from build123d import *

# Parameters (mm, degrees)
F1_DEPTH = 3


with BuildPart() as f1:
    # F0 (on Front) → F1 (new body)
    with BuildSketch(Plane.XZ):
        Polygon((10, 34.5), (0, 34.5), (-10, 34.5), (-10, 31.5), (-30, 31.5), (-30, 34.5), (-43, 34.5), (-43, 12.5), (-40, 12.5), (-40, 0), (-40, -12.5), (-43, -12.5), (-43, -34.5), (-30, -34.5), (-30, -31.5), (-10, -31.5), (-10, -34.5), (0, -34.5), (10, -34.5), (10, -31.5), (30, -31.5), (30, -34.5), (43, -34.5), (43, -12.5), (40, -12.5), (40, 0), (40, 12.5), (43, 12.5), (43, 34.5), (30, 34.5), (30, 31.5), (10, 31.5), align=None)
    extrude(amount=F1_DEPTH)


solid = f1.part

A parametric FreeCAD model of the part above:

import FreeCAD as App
import Part
import Sketcher

V = App.Vector
Q = App.Units.Quantity

doc = App.newDocument("Part")
params = doc.addObject("Spreadsheet::Sheet", "Params")
for row, (alias, value) in enumerate([
    ("sketch1_width", "20 mm"),
    ("sketch1_width2", "13 mm"),
    ("sketch1_width3", "3 mm"),
    ("sketch1_height", "22 mm"),
    ("sketch1_height2", "25 mm"),
    ("pad1_length", "3 mm"),
], start=1):
    params.set(f"A{row}", alias)
    params.set(f"B{row}", "=" + value)
    params.setAlias(f"B{row}", alias)

body = doc.addObject("PartDesign::Body", "Body")

# Sketch on XZ plane
sketch1 = body.newObject("Sketcher::SketchObject", "Sketch")
sketch1.AttachmentSupport = (doc.getObject("XZ_Plane"), [""])
sketch1.MapMode = "FlatFace"
sketch1.addGeometry(Part.LineSegment(V(10, 34.5, 0), V(-10, 34.5, 0)), False)
sketch1.addGeometry(Part.LineSegment(V(-10, 34.5, 0), V(-10, 31.5, 0)), False)
sketch1.addGeometry(Part.LineSegment(V(-10, 31.5, 0), V(-30, 31.5, 0)), False)
sketch1.addGeometry(Part.LineSegment(V(-30, 31.5, 0), V(-30, 34.5, 0)), False)
sketch1.addGeometry(Part.LineSegment(V(-30, 34.5, 0), V(-43, 34.5, 0)), False)
sketch1.addGeometry(Part.LineSegment(V(-43, 34.5, 0), V(-43, 12.5, 0)), False)
sketch1.addGeometry(Part.LineSegment(V(-43, 12.5, 0), V(-40, 12.5, 0)), False)
sketch1.addGeometry(Part.LineSegment(V(-40, 12.5, 0), V(-40, -12.5, 0)), False)
sketch1.addGeometry(Part.LineSegment(V(-40, -12.5, 0), V(-43, -12.5, 0)), False)
sketch1.addGeometry(Part.LineSegment(V(-43, -12.5, 0), V(-43, -34.5, 0)), False)
sketch1.addGeometry(Part.LineSegment(V(-43, -34.5, 0), V(-30, -34.5, 0)), False)
sketch1.addGeometry(Part.LineSegment(V(-30, -34.5, 0), V(-30, -31.5, 0)), False)
sketch1.addGeometry(Part.LineSegment(V(-30, -31.5, 0), V(-10, -31.5, 0)), False)
sketch1.addGeometry(Part.LineSegment(V(-10, -31.5, 0), V(-10, -34.5, 0)), False)
sketch1.addGeometry(Part.LineSegment(V(-10, -34.5, 0), V(10, -34.5, 0)), False)
sketch1.addGeometry(Part.LineSegment(V(10, -34.5, 0), V(10, -31.5, 0)), False)
sketch1.addGeometry(Part.LineSegment(V(10, -31.5, 0), V(30, -31.5, 0)), False)
sketch1.addGeometry(Part.LineSegment(V(30, -31.5, 0), V(30, -34.5, 0)), False)
sketch1.addGeometry(Part.LineSegment(V(30, -34.5, 0), V(43, -34.5, 0)), False)
sketch1.addGeometry(Part.LineSegment(V(43, -34.5, 0), V(43, -12.5, 0)), False)
sketch1.addGeometry(Part.LineSegment(V(43, -12.5, 0), V(40, -12.5, 0)), False)
sketch1.addGeometry(Part.LineSegment(V(40, -12.5, 0), V(40, 12.5, 0)), False)
sketch1.addGeometry(Part.LineSegment(V(40, 12.5, 0), V(43, 12.5, 0)), False)
sketch1.addGeometry(Part.LineSegment(V(43, 12.5, 0), V(43, 34.5, 0)), False)
sketch1.addGeometry(Part.LineSegment(V(43, 34.5, 0), V(30, 34.5, 0)), False)
sketch1.addGeometry(Part.LineSegment(V(30, 34.5, 0), V(30, 31.5, 0)), False)
sketch1.addGeometry(Part.LineSegment(V(30, 31.5, 0), V(10, 31.5, 0)), False)
sketch1.addGeometry(Part.LineSegment(V(10, 31.5, 0), V(10, 34.5, 0)), False)
sketch1.addConstraint(Sketcher.Constraint("Coincident", 0, 2, 1, 1))
sketch1.addConstraint(Sketcher.Constraint("Coincident", 1, 2, 2, 1))
sketch1.addConstraint(Sketcher.Constraint("Coincident", 2, 2, 3, 1))
sketch1.addConstraint(Sketcher.Constraint("Coincident", 3, 2, 4, 1))
sketch1.addConstraint(Sketcher.Constraint("Coincident", 4, 2, 5, 1))
sketch1.addConstraint(Sketcher.Constraint("Coincident", 5, 2, 6, 1))
sketch1.addConstraint(Sketcher.Constraint("Coincident", 6, 2, 7, 1))
sketch1.addConstraint(Sketcher.Constraint("Coincident", 7, 2, 8, 1))
sketch1.addConstraint(Sketcher.Constraint("Coincident", 8, 2, 9, 1))
sketch1.addConstraint(Sketcher.Constraint("Coincident", 9, 2, 10, 1))
sketch1.addConstraint(Sketcher.Constraint("Coincident", 10, 2, 11, 1))
sketch1.addConstraint(Sketcher.Constraint("Coincident", 11, 2, 12, 1))
sketch1.addConstraint(Sketcher.Constraint("Coincident", 12, 2, 13, 1))
sketch1.addConstraint(Sketcher.Constraint("Coincident", 13, 2, 14, 1))
sketch1.addConstraint(Sketcher.Constraint("Coincident", 14, 2, 15, 1))
sketch1.addConstraint(Sketcher.Constraint("Coincident", 15, 2, 16, 1))
sketch1.addConstraint(Sketcher.Constraint("Coincident", 16, 2, 17, 1))
sketch1.addConstraint(Sketcher.Constraint("Coincident", 17, 2, 18, 1))
sketch1.addConstraint(Sketcher.Constraint("Coincident", 18, 2, 19, 1))
sketch1.addConstraint(Sketcher.Constraint("Coincident", 19, 2, 20, 1))
sketch1.addConstraint(Sketcher.Constraint("Coincident", 20, 2, 21, 1))
sketch1.addConstraint(Sketcher.Constraint("Coincident", 21, 2, 22, 1))
sketch1.addConstraint(Sketcher.Constraint("Coincident", 22, 2, 23, 1))
sketch1.addConstraint(Sketcher.Constraint("Coincident", 23, 2, 24, 1))
sketch1.addConstraint(Sketcher.Constraint("Coincident", 24, 2, 25, 1))
sketch1.addConstraint(Sketcher.Constraint("Coincident", 25, 2, 26, 1))
sketch1.addConstraint(Sketcher.Constraint("Coincident", 26, 2, 27, 1))
sketch1.addConstraint(Sketcher.Constraint("Coincident", 27, 2, 0, 1))
sketch1.addConstraint(Sketcher.Constraint("Horizontal", 0))
sketch1.addConstraint(Sketcher.Constraint("Vertical", 1))
sketch1.addConstraint(Sketcher.Constraint("Horizontal", 2))
sketch1.addConstraint(Sketcher.Constraint("Vertical", 3))
sketch1.addConstraint(Sketcher.Constraint("Horizontal", 4))
sketch1.addConstraint(Sketcher.Constraint("Vertical", 5))
sketch1.addConstraint(Sketcher.Constraint("Horizontal", 6))
sketch1.addConstraint(Sketcher.Constraint("Vertical", 7))
sketch1.addConstraint(Sketcher.Constraint("Horizontal", 8))
sketch1.addConstraint(Sketcher.Constraint("Vertical", 9))
sketch1.addConstraint(Sketcher.Constraint("Horizontal", 10))
sketch1.addConstraint(Sketcher.Constraint("Vertical", 11))
sketch1.addConstraint(Sketcher.Constraint("Horizontal", 12))
sketch1.addConstraint(Sketcher.Constraint("Vertical", 13))
sketch1.addConstraint(Sketcher.Constraint("Horizontal", 14))
sketch1.addConstraint(Sketcher.Constraint("Vertical", 15))
sketch1.addConstraint(Sketcher.Constraint("Horizontal", 16))
sketch1.addConstraint(Sketcher.Constraint("Vertical", 17))
sketch1.addConstraint(Sketcher.Constraint("Horizontal", 18))
sketch1.addConstraint(Sketcher.Constraint("Vertical", 19))
sketch1.addConstraint(Sketcher.Constraint("Horizontal", 20))
sketch1.addConstraint(Sketcher.Constraint("Vertical", 21))
sketch1.addConstraint(Sketcher.Constraint("Horizontal", 22))
sketch1.addConstraint(Sketcher.Constraint("Vertical", 23))
sketch1.addConstraint(Sketcher.Constraint("Horizontal", 24))
sketch1.addConstraint(Sketcher.Constraint("Vertical", 25))
sketch1.addConstraint(Sketcher.Constraint("Horizontal", 26))
sketch1.addConstraint(Sketcher.Constraint("Vertical", 27))
sketch1.addConstraint(Sketcher.Constraint("Symmetric", 0, 2, 14, 2, -1, 1))
sketch1.addConstraint(Sketcher.Constraint("Symmetric", 2, 2, 16, 2, -1, 1))
sketch1.addConstraint(Sketcher.Constraint("Symmetric", 4, 2, 18, 2, -1, 1))
sketch1.addConstraint(Sketcher.Constraint("Symmetric", 6, 2, 20, 2, -1, 1))
sketch1.addConstraint(Sketcher.Constraint("Symmetric", 8, 2, 22, 2, -1, 1))
sketch1.addConstraint(Sketcher.Constraint("Symmetric", 10, 2, 24, 2, -1, 1))
sketch1.addConstraint(Sketcher.Constraint("Symmetric", 12, 2, 26, 2, -1, 1))
sketch1.addConstraint(Sketcher.Constraint("Symmetric", 12, 2, 15, 2, -2))
sketch1.addConstraint(Sketcher.Constraint("Symmetric", 10, 2, 17, 2, -2))
sketch1.addConstraint(Sketcher.Constraint("Symmetric", 8, 2, 19, 2, -2))
sketch1.addConstraint(Sketcher.Constraint("Horizontal", 0, 2, 3, 2))
sketch1.addConstraint(Sketcher.Constraint("Equal", 0, 2))
sketch1.addConstraint(Sketcher.Constraint("Equal", 22, 1))
sketch1.addConstraint(Sketcher.Constraint("DistanceX", 0, 2, 0, 1, Q("20 mm")))
sketch1.addConstraint(Sketcher.Constraint("DistanceX", 4, 2, 4, 1, Q("13 mm")))
sketch1.addConstraint(Sketcher.Constraint("DistanceX", 6, 1, 6, 2, Q("3 mm")))
sketch1.addConstraint(Sketcher.Constraint("DistanceY", 5, 2, 5, 1, Q("22 mm")))
sketch1.addConstraint(Sketcher.Constraint("DistanceY", 7, 2, 7, 1, Q("25 mm")))
sketch1.setExpression("Constraints[69]", "Params.sketch1_width")
sketch1.setExpression("Constraints[70]", "Params.sketch1_width2")
sketch1.setExpression("Constraints[71]", "Params.sketch1_width3")
sketch1.setExpression("Constraints[72]", "Params.sketch1_height")
sketch1.setExpression("Constraints[73]", "Params.sketch1_height2")
pad1 = body.newObject("PartDesign::Pad", "Pad")
pad1.Profile = sketch1
pad1.setExpression("Length", "Params.pad1_length")

doc.recompute()
